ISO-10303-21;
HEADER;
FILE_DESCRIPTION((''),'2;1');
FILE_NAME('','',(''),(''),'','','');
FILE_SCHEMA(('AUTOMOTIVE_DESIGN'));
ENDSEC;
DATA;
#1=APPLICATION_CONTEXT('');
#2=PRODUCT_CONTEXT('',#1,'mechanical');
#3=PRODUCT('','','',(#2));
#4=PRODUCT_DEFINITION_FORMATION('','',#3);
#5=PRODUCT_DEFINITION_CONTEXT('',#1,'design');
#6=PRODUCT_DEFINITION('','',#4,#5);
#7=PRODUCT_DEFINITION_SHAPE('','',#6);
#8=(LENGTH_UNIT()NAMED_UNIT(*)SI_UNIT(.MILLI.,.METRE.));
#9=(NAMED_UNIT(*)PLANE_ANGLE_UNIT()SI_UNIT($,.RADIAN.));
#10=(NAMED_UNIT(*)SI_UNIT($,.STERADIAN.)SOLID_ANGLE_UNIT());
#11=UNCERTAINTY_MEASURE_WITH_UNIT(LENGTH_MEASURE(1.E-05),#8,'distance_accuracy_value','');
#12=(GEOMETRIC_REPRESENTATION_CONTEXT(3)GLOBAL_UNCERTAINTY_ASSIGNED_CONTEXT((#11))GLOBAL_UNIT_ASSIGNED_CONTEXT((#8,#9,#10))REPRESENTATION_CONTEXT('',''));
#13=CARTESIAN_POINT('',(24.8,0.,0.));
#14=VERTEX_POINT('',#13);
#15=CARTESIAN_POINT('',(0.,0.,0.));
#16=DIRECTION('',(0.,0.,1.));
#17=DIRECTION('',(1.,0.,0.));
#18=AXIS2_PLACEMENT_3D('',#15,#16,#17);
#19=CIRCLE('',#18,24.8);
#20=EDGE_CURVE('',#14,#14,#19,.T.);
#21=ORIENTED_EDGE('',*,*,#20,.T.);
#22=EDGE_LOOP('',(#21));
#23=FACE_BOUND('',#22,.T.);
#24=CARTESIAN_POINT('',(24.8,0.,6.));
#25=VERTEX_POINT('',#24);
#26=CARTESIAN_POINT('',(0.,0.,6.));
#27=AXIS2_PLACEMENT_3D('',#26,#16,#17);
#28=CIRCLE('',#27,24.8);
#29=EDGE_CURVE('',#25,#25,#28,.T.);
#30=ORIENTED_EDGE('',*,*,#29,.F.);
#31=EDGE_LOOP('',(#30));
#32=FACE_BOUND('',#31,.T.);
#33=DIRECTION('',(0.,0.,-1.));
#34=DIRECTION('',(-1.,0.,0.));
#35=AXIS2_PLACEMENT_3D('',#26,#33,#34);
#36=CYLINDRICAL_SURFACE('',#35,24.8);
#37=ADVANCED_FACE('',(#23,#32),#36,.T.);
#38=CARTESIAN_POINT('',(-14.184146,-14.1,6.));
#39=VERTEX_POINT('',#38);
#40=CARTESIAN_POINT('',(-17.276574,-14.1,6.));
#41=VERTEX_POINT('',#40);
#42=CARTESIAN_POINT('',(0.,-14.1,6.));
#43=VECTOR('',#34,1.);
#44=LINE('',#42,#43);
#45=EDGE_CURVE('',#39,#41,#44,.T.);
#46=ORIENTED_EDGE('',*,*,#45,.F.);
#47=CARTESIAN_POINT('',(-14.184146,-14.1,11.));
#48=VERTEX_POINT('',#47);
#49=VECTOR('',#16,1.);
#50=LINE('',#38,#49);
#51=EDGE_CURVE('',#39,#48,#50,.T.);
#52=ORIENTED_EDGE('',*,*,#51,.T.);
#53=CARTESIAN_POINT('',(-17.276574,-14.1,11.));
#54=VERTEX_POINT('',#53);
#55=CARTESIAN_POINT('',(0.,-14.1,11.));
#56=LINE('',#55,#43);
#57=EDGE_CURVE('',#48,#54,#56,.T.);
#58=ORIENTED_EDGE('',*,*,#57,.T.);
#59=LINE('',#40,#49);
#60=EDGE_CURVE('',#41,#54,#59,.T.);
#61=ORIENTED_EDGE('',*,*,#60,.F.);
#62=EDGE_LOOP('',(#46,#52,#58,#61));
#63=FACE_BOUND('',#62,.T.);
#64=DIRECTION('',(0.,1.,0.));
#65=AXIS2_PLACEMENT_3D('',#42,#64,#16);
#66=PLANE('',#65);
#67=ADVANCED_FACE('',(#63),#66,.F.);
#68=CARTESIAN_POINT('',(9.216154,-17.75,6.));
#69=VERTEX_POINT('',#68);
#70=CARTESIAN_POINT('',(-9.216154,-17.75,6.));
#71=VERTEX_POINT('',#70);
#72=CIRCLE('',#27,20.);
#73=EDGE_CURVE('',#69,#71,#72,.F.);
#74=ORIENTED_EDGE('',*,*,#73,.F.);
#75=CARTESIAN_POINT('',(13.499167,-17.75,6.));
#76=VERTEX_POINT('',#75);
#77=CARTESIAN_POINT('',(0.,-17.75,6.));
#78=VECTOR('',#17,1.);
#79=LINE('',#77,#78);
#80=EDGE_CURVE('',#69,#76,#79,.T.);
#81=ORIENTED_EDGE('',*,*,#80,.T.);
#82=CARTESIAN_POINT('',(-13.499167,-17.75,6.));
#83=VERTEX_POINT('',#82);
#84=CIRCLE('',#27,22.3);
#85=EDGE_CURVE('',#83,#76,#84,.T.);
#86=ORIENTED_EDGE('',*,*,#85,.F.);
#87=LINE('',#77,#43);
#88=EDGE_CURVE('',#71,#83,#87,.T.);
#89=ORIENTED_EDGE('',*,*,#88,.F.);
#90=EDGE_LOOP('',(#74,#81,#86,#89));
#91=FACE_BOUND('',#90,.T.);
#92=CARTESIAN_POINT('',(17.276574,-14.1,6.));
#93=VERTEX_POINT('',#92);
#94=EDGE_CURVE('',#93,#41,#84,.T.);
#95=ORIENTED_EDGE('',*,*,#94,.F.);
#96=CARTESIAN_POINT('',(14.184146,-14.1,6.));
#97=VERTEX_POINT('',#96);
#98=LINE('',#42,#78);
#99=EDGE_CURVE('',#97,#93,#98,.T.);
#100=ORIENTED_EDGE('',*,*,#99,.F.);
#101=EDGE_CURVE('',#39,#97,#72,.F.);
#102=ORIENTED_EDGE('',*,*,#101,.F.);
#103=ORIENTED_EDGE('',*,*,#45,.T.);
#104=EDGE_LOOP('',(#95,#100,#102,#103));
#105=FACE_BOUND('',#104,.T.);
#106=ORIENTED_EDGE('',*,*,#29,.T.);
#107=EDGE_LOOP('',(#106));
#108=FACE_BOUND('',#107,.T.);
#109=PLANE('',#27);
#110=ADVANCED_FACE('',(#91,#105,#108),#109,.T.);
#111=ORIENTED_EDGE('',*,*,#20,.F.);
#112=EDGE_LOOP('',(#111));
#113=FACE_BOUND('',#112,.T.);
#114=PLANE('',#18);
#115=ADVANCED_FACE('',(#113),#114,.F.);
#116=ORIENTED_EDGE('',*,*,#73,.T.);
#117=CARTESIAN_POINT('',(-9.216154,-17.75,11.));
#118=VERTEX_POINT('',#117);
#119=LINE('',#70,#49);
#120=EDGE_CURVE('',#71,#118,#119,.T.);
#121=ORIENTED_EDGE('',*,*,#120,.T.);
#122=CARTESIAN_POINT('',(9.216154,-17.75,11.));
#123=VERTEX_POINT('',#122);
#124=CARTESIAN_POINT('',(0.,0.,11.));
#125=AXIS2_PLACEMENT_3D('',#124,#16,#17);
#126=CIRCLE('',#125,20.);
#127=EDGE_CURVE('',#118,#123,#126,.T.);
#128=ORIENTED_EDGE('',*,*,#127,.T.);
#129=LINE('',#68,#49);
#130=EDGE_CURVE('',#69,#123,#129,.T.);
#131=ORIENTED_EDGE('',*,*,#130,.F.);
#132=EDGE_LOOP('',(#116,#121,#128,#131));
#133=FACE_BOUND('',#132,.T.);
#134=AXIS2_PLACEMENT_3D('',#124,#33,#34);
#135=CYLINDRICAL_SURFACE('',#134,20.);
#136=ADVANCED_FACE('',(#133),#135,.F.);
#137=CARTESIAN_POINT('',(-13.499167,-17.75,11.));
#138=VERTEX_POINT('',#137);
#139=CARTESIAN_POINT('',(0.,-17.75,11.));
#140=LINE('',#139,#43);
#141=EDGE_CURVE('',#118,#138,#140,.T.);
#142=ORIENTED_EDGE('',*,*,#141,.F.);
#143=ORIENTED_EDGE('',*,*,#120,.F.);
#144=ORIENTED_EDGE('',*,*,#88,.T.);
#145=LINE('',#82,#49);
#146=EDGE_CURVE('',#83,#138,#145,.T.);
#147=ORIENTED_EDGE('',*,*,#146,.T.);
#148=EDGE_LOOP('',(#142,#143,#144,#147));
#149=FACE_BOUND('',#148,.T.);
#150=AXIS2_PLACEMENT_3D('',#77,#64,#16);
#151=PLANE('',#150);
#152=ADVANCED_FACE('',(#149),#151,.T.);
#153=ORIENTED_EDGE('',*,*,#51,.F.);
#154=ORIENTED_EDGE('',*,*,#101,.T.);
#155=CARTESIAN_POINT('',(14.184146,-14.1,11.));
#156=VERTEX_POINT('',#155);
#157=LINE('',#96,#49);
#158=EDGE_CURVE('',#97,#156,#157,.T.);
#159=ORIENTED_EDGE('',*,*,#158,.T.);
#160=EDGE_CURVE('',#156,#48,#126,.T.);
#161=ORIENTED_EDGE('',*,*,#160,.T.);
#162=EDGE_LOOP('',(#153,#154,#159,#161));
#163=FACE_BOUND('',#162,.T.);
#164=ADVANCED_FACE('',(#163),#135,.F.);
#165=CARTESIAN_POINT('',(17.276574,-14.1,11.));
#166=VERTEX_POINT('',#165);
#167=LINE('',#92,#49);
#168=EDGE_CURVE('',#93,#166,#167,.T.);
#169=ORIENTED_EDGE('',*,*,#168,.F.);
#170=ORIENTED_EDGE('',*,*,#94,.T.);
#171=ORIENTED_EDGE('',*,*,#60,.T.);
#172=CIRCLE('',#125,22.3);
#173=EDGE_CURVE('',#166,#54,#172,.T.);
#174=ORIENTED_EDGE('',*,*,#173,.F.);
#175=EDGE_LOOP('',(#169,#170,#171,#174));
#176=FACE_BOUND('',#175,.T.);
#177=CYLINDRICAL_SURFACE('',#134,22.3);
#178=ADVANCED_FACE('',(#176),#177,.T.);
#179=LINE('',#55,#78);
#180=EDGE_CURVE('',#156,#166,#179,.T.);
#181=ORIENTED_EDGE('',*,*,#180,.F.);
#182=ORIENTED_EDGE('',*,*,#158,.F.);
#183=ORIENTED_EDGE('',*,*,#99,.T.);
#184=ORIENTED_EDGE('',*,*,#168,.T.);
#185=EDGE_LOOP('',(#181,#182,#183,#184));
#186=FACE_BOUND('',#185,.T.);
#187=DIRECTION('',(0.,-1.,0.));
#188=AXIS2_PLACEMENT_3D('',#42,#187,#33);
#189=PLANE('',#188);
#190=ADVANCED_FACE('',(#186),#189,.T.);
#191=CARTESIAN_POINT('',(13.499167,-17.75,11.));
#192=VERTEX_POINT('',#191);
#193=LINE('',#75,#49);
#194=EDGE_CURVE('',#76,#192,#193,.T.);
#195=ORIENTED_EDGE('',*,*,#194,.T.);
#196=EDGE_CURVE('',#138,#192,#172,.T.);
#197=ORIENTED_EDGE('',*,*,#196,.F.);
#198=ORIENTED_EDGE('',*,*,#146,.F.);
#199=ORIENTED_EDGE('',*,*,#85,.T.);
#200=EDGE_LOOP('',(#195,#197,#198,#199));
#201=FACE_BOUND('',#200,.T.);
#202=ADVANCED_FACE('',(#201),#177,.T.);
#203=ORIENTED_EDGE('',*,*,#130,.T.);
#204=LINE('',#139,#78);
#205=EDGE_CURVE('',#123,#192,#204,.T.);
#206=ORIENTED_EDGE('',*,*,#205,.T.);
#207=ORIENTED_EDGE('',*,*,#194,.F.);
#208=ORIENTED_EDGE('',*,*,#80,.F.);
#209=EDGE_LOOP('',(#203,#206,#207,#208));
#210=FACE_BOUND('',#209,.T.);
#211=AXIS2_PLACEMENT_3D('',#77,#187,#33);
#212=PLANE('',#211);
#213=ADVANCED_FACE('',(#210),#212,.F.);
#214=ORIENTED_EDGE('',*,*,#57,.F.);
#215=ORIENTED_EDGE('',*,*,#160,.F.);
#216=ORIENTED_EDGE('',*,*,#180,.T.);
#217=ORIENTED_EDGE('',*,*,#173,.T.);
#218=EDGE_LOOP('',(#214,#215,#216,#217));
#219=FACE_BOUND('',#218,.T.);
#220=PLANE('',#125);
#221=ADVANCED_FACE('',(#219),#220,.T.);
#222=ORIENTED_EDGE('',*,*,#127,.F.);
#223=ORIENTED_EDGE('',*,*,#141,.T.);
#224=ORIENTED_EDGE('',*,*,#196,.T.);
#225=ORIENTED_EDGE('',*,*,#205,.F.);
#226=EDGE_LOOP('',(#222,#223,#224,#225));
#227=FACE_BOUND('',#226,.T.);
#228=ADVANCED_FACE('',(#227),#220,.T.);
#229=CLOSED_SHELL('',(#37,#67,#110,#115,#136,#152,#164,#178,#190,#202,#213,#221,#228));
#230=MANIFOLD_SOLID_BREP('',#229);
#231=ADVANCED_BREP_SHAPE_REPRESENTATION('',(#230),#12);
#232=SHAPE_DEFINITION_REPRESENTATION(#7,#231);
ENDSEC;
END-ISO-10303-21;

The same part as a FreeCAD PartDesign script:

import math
import FreeCAD as App
import Part
import Sketcher

doc = App.newDocument("Part")
body = doc.addObject("PartDesign::Body", "Body")

sketch1 = body.newObject("Sketcher::SketchObject", "Sketch")
sketch1.AttachmentSupport = (doc.getObject("XY_Plane"), [""])
sketch1.MapMode = "FlatFace"
sketch1.addGeometry(Part.Circle(App.Vector(0, 0, 0), App.Vector(0, 0, 1), 24.8), False)
sketch1.addConstraint([
    Sketcher.Constraint("Coincident", 0, 3, -1, 1),
    Sketcher.Constraint("Diameter", 0, 49.6),
])
pad1 = body.newObject("PartDesign::Pad", "Pad")
pad1.Profile = sketch1
pad1.Length = 6

sketch2 = body.newObject("Sketcher::SketchObject", "Sketch001")
sketch2.AttachmentSupport = (doc.getObject("XY_Plane"), [""])
sketch2.MapMode = "FlatFace"
sketch2.AttachmentOffset = App.Placement(App.Vector(0, 0, 6), App.Rotation())
sketch2.addGeometry([
    Part.Circle(App.Vector(0, 0, 0), App.Vector(0, 0, 1), 22.3),
    Part.Circle(App.Vector(0, 0, 0), App.Vector(0, 0, 1), 20),
], False)
sketch2.addConstraint([
    Sketcher.Constraint("Coincident", 0, 3, -1, 1),
    Sketcher.Constraint("Coincident", 1, 3, -1, 1),
    Sketcher.Constraint("Diameter", 1, 40.0),
    Sketcher.Constraint("Diameter", 0, 44.6),
])
pad2 = body.newObject("PartDesign::Pad", "Pad001")
pad2.Profile = sketch2
pad2.Length = 5

sketch3 = body.newObject("Sketcher::SketchObject", "Sketch002")
sketch3.AttachmentSupport = (doc.getObject("XY_Plane"), [""])
sketch3.MapMode = "FlatFace"
sketch3.AttachmentOffset = App.Placement(App.Vector(0, 0, 6), App.Rotation())
sketch3.addGeometry([
    Part.LineSegment(App.Vector(-13.499167, -17.75, 0), App.Vector(-9.216154, -17.75, 0)),
    Part.ArcOfCircle(Part.Circle(App.Vector(0, 0, 0), App.Vector(0, 0, 1), 20), math.radians(-135.170456), math.radians(-117.43924)),
    Part.LineSegment(App.Vector(-14.184146, -14.1, 0), App.Vector(-17.276574, -14.1, 0)),
    Part.ArcOfCircle(Part.Circle(App.Vector(0, 0, 0), App.Vector(0, 0, 1), 22.3), math.radians(-140.780945), math.radians(-127.253585)),
    Part.LineSegment(App.Vector(17.276574, -14.1, 0), App.Vector(14.184146, -14.1, 0)),
    Part.ArcOfCircle(Part.Circle(App.Vector(0, 0, 0), App.Vector(0, 0, 1), 20), math.radians(-62.56076), math.radians(-44.829544)),
    Part.LineSegment(App.Vector(9.216154, -17.75, 0), App.Vector(13.499167, -17.75, 0)),
    Part.ArcOfCircle(Part.Circle(App.Vector(0, 0, 0), App.Vector(0, 0, 1), 22.3), math.radians(-52.746415), math.radians(-39.219055)),
], False)
sketch3.addConstraint([
    Sketcher.Constraint("Coincident", 0, 2, 1, 2),
    Sketcher.Constraint("Coincident", 1, 1, 2, 1),
    Sketcher.Constraint("Coincident", 2, 2, 3, 1),
    Sketcher.Constraint("Coincident", 3, 2, 0, 1),
    Sketcher.Constraint("Coincident", 4, 2, 5, 2),
    Sketcher.Constraint("Coincident", 5, 1, 6, 1),
    Sketcher.Constraint("Coincident", 6, 2, 7, 1),
    Sketcher.Constraint("Coincident", 7, 2, 4, 1),
    Sketcher.Constraint("Horizontal", 0),
    Sketcher.Constraint("Horizontal", 2),
    Sketcher.Constraint("Horizontal", 4),
    Sketcher.Constraint("Horizontal", 6),
    Sketcher.Constraint("Coincident", 1, 3, -1, 1),
    Sketcher.Constraint("Coincident", 3, 3, -1, 1),
    Sketcher.Constraint("Coincident", 5, 3, -1, 1),
    Sketcher.Constraint("Coincident", 7, 3, -1, 1),
    Sketcher.Constraint("Equal", 1, 5),
    Sketcher.Constraint("Equal", 3, 7),
    Sketcher.Constraint("Horizontal", 2, 2, 4, 2),
    Sketcher.Constraint("Horizontal", 3, 2, 5, 1),
    Sketcher.Constraint("Radius", 1, 20.0),
    Sketcher.Constraint("Radius", 3, 22.3),
    Sketcher.Constraint("DistanceY", 1, 1, -1, 1, 14.1),
    Sketcher.Constraint("DistanceY", 0, 2, -1, 1, 17.75),
])
pocket1 = body.newObject("PartDesign::Pocket", "Pocket")
pocket1.Profile = sketch3
pocket1.Length = 5
pocket1.Reversed = True

doc.recompute()
